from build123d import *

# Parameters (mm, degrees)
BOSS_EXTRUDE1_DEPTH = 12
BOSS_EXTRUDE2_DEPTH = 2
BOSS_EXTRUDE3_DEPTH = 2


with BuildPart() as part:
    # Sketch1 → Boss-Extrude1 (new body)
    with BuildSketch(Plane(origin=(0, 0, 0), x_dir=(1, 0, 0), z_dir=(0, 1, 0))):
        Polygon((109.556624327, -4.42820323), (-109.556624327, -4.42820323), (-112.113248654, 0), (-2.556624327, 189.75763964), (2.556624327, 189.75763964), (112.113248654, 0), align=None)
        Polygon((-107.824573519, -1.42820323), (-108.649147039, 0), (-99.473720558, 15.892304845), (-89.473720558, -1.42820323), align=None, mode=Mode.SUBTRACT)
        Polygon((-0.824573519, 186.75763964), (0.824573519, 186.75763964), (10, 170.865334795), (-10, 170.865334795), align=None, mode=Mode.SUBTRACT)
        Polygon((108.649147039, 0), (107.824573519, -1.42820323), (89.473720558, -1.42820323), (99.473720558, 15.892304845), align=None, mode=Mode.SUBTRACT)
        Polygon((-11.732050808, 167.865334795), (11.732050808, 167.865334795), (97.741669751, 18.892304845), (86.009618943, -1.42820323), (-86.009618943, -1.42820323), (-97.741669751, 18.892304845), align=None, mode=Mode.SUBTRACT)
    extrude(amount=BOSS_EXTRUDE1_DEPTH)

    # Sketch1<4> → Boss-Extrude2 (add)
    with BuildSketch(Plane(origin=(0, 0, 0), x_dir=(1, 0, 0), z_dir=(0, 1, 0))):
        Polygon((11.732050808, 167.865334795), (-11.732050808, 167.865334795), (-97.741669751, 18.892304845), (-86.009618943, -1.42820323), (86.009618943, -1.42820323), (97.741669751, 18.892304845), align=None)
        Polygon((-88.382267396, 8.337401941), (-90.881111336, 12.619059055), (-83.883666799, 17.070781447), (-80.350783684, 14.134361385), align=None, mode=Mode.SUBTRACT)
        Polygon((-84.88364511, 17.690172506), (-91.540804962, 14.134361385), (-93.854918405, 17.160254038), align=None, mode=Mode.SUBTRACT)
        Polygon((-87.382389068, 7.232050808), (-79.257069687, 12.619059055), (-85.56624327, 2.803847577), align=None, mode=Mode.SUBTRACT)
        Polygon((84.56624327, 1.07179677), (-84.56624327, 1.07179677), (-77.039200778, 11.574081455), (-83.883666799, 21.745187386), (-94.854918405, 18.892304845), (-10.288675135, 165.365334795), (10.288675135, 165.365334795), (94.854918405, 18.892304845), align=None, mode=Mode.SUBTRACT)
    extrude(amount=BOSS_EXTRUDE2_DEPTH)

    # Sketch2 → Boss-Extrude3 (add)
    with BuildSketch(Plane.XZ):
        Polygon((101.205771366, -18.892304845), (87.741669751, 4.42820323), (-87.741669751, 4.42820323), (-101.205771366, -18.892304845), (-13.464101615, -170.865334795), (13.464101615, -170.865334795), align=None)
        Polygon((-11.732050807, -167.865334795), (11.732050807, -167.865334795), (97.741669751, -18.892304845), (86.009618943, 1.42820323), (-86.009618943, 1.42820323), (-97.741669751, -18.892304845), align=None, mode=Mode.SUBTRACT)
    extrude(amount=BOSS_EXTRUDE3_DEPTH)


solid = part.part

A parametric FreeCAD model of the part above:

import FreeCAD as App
import Part
import Sketcher

V = App.Vector
Q = App.Units.Quantity


def add_polygon(sketch, points):
    """Adds a closed chain of lines whose ends are joined by coincident constraints."""
    first, n = sketch.GeometryCount, len(points)
    for a, b in zip(points, points[1:] + points[:1]):
        sketch.addGeometry(Part.LineSegment(App.Vector(*a, 0), App.Vector(*b, 0)), False)
    for i in range(n):
        sketch.addConstraint(Sketcher.Constraint("Coincident", first + i, 2, first + (i + 1) % n, 1))

doc = App.newDocument("Part")
params = doc.addObject("Spreadsheet::Sheet", "Params")
for row, (alias, value) in enumerate([
    ("sketch1_width", "20 mm"),
    ("sketch1_length", "20 mm"),
    ("pad1_length", "12 mm"),
    ("pad2_length", "2 mm"),
    ("pad3_length", "2 mm"),
], start=1):
    params.set(f"A{row}", alias)
    params.set(f"B{row}", "=" + value)
    params.setAlias(f"B{row}", alias)

body = doc.addObject("PartDesign::Body", "Body")

sketch1 = doc.addObject("Sketcher::SketchObject", "Sketch")
body.addObject(sketch1)
sketch1.AttachmentSupport = (doc.XZ_Plane, [""])
sketch1.MapMode = "FlatFace"
add_polygon(sketch1, [(-109.6, 4.4), (109.6, 4.4), (112.1, 0), (2.6, -189.8), (-2.6, -189.8), (-112.1, 0)])
add_polygon(sketch1, [(108.6, 0), (107.8, 1.4), (89.5, 1.4), (99.5, -15.9)])
add_polygon(sketch1, [(-107.8, 1.4), (-108.6, 0), (-99.5, -15.9), (-89.5, 1.4)])
add_polygon(sketch1, [(-11.7, -167.9), (11.7, -167.9), (97.7, -18.9), (86, 1.4), (-86, 1.4), (-97.7, -18.9)])
add_polygon(sketch1, [(-0.8, -186.8), (0.8, -186.8), (10, -170.9), (-10, -170.9)])
sketch1.addConstraint([
    Sketcher.Constraint("Horizontal", 0),
    Sketcher.Constraint("Horizontal", 3),
    Sketcher.Constraint("Horizontal", 7),
    Sketcher.Constraint("Horizontal", 13),
    Sketcher.Constraint("Horizontal", 14),
    Sketcher.Constraint("Horizontal", 17),
    Sketcher.Constraint("Horizontal", 20),
    Sketcher.Constraint("Horizontal", 22),
    Sketcher.Constraint("Symmetric", 1, 2, 4, 2, -1, 1),
    Sketcher.Constraint("Symmetric", 9, 2, 10, 2, -1, 1),
    Sketcher.Constraint("Symmetric", 8, 2, 11, 2, -2),
    Sketcher.Constraint("Symmetric", 7, 2, 12, 2, -2),
    Sketcher.Constraint("Symmetric", 15, 2, 18, 2, -2),
    Sketcher.Constraint("PointOnObject", 1, 2, -1),
    Sketcher.Constraint("PointOnObject", 9, 2, -1),
    Sketcher.Constraint("Parallel", 1, 4),
    Sketcher.Constraint("Parallel", 2, 5),
    Sketcher.Constraint("Parallel", 4, 6),
    Sketcher.Constraint("Parallel", 6, 8),
    Sketcher.Constraint("Parallel", 5, 9),
    Sketcher.Constraint("Parallel", 9, 10),
    Sketcher.Constraint("Parallel", 8, 11),
    Sketcher.Constraint("Parallel", 12, 15),
    Sketcher.Constraint("Parallel", 11, 16),
    Sketcher.Constraint("Parallel", 15, 18),
    Sketcher.Constraint("Parallel", 16, 19),
    Sketcher.Constraint("Parallel", 18, 21),
    Sketcher.Constraint("Parallel", 19, 23),
    Sketcher.Constraint("Horizontal", 13, 2, 16, 2),
    Sketcher.Constraint("Equal", 11, 21),
    Sketcher.Constraint("DistanceX", 22, 2, 22, 1, 20.0),
    Sketcher.Constraint("Angle", 1, Q("-60 deg")),
    Sketcher.Constraint("Distance", 8, 20.0),
    Sketcher.Constraint("DistanceX", -1, 1, 21, 2, 10.0),
    Sketcher.Constraint("DistanceX", 2, 2, 0, 2, 107.0),
    Sketcher.Constraint("DistanceY", 6, 2, 0, 2, 3.0),
    Sketcher.Constraint("DistanceY", 15, 2, 8, 2, 3.0),
    Sketcher.Constraint("DistanceY", 2, 2, 20, 2, 3.0),
    Sketcher.Constraint("DistanceY", 21, 2, 14, 2, 3.0),
    Sketcher.Constraint("DistanceX", 14, 1, 14, 2, 23.464102),
    Sketcher.Constraint("DistanceX", 0, 1, 0, 2, 219.113249),
    Sketcher.Constraint("DistanceX", 9, 2, 1, 2, 3.464102),
    Sketcher.Constraint("DistanceX", 16, 2, 7, 2, 3.464102),
])
sketch1.setExpression("Constraints[54]", "Params.sketch1_width")
sketch1.setExpression("Constraints[56]", "Params.sketch1_length")
pad1 = doc.addObject("PartDesign::Pad", "Pad")
body.addObject(pad1)
pad1.Profile = sketch1
pad1.setExpression("Length", "Params.pad1_length")
pad1.Reversed = True

sketch2 = doc.addObject("Sketcher::SketchObject", "Sketch001")
body.addObject(sketch2)
sketch2.AttachmentSupport = (doc.XZ_Plane, [""])
sketch2.MapMode = "FlatFace"
add_polygon(sketch2, [(11.7, -167.9), (-11.7, -167.9), (-97.7, -18.9), (-86, 1.4), (86, 1.4), (97.7, -18.9)])
add_polygon(sketch2, [(-85.6, -2.8), (-87.4, -7.2), (-79.3, -12.6)])
add_polygon(sketch2, [(-93.9, -17.2), (-84.9, -17.7), (-91.5, -14.1)])
add_polygon(sketch2, [(-80.4, -14.1), (-88.4, -8.3), (-90.9, -12.6), (-83.9, -17.1)])
add_polygon(sketch2, [(94.9, -18.9), (84.6, -1.1), (-84.6, -1.1), (-77, -11.6), (-83.9, -21.7), (-94.9, -18.9), (-10.3, -165.4), (10.3, -165.4)])
sketch2.addConstraint([
    Sketcher.Constraint("Horizontal", 0),
    Sketcher.Constraint("Horizontal", 3),
    Sketcher.Constraint("Horizontal", 17),
    Sketcher.Constraint("Horizontal", 22),
    Sketcher.Constraint("Symmetric", 1, 2, 4, 2, -2),
    Sketcher.Constraint("Symmetric", 20, 2, 23, 2, -2),
    Sketcher.Constraint("Parallel", 1, 4),
    Sketcher.Constraint("Parallel", 2, 5),
    Sketcher.Constraint("Parallel", 4, 16),
    Sketcher.Constraint("Parallel", 16, 21),
    Sketcher.Constraint("Parallel", 5, 23),
    Sketcher.Constraint("Horizontal", 7, 2, 13, 2),
    Sketcher.Constraint("Horizontal", 10, 2, 15, 2),
    Sketcher.Constraint("Horizontal", 4, 2, 20, 2),
    Sketcher.Constraint("Vertical", 14, 2, 19, 2),
    Sketcher.Constraint("Equal", 2, 4),
    Sketcher.Constraint("Angle", 1, Q("120 deg")),
    Sketcher.Constraint("DistanceX", 8, 2, 17, 2, 1.0),
    Sketcher.Constraint("DistanceX", 20, 2, 11, 2, 1.0),
    Sketcher.Constraint("DistanceY", 16, 2, 3, 2, 2.5),
    Sketcher.Constraint("DistanceY", 0, 2, 21, 2, 2.5),
    Sketcher.Constraint("DistanceX", 0, 2, 0, 1, 23.464102),
    Sketcher.Constraint("Distance", 2, 23.464102),
    Sketcher.Constraint("Distance", 13, 4.9575),
    Sketcher.Constraint("DistanceX", 22, 1, 22, 2, 20.57735),
    Sketcher.Constraint("DistanceY", 12, 2, -1, 1, 8.337402),
    Sketcher.Constraint("DistanceX", 18, 2, -1, 1, 77.039201),
    Sketcher.Constraint("DistanceX", 1, 2, 7, 2, 18.4846),
    Sketcher.Constraint("DistanceX", 8, 2, 9, 2, 0.682598),
    Sketcher.Constraint("DistanceX", 12, 2, 14, 2, 4.498601),
    Sketcher.Constraint("DistanceY", 14, 2, 18, 2, 5.4967),
    Sketcher.Constraint("Distance", 7, 9.748881),
    Sketcher.Constraint("Distance", 8, 11.668078),
    Sketcher.Constraint("Distance", 9, 8.98691),
    Sketcher.Constraint("Distance", 10, 7.547289),
    Sketcher.Constraint("Distance", 11, 3.80935),
    Sketcher.Constraint("Distance", 15, 4.59389),
    Sketcher.Constraint("Distance", 18, 12.921082),
    Sketcher.Constraint("DistanceX", 3, 1, 3, 2, 172.019238),
    Sketcher.Constraint("DistanceX", 17, 2, 17, 1, 169.132487),
    Sketcher.Constraint("DistanceX", 6, 2, -1, 1, 87.382389),
    Sketcher.Constraint("DistanceY", 6, 2, -1, 1, 7.232051),
    Sketcher.Constraint("DistanceY", 10, 2, -1, 1, 14.134361),
    Sketcher.Constraint("DistanceX", 13, 2, -1, 1, 90.881111),
    Sketcher.Constraint("DistanceY", 14, 2, -1, 1, 17.070781),
    Sketcher.Constraint("DistanceY", 19, 2, 7, 2, 9.126128),
])
pad2 = doc.addObject("PartDesign::Pad", "Pad001")
body.addObject(pad2)
pad2.Profile = sketch2
pad2.setExpression("Length", "Params.pad2_length")
pad2.Reversed = True

sketch3 = doc.addObject("Sketcher::SketchObject", "Sketch002")
body.addObject(sketch3)
sketch3.AttachmentSupport = (doc.XZ_Plane, [""])
sketch3.MapMode = "FlatFace"
add_polygon(sketch3, [(101, -19), (88, 4), (-88, 4), (-101, -19), (-13, -171), (13, -171)])
add_polygon(sketch3, [(12, -168), (-12, -168), (-98, -19), (-86, 1), (86, 1), (98, -19)])
sketch3.addConstraint([
    Sketcher.Constraint("Horizontal", 1),
    Sketcher.Constraint("Horizontal", 4),
    Sketcher.Constraint("Horizontal", 6),
    Sketcher.Constraint("Horizontal", 9),
    Sketcher.Constraint("Symmetric", 2, 2, 5, 2, -2),
    Sketcher.Constraint("Symmetric", 7, 2, 10, 2, -2),
    Sketcher.Constraint("Parallel", 0, 3),
    Sketcher.Constraint("Parallel", 2, 5),
    Sketcher.Constraint("Parallel", 3, 7),
    Sketcher.Constraint("Parallel", 5, 8),
    Sketcher.Constraint("Parallel", 7, 10),
    Sketcher.Constraint("Parallel", 8, 11),
    Sketcher.Constraint("Horizontal", 5, 2, 7, 2),
    Sketcher.Constraint("Equal", 0, 2),
    Sketcher.Constraint("Angle", 0, Q("120 deg")),
    Sketcher.Constraint("DistanceY", 3, 2, 6, 2, 3.0),
    Sketcher.Constraint("DistanceX", 7, 2, 1, 2, 10.0),
    Sketcher.Constraint("DistanceY", 8, 2, 1, 2, 3.0),
    Sketcher.Constraint("DistanceX", 6, 2, 6, 1, 23.464102),
    Sketcher.Constraint("Distance", 8, 23.464102),
    Sketcher.Constraint("DistanceX", 1, 2, 1, 1, 175.48334),
    Sketcher.Constraint("DistanceY", -1, 1, 0, 2, 4.428203),
])
pad3 = doc.addObject("PartDesign::Pad", "Pad002")
body.addObject(pad3)
pad3.Profile = sketch3
pad3.setExpression("Length", "Params.pad3_length")

doc.recompute()
